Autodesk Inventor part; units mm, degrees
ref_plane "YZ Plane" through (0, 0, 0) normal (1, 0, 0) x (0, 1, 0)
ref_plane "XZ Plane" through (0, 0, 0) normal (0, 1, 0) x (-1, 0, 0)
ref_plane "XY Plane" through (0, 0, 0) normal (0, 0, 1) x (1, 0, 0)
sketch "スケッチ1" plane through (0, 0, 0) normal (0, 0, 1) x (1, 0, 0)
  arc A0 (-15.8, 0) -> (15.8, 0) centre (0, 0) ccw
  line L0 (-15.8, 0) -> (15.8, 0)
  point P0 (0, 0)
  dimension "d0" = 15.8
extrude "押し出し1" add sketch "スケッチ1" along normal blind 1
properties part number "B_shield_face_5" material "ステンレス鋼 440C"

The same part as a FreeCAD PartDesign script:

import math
import FreeCAD as App
import Part
import Sketcher
Q = App.Units.Quantity

doc = App.newDocument("Part")
body = doc.addObject("PartDesign::Body", "Body")

sketch1 = body.newObject("Sketcher::SketchObject", "Sketch")
sketch1.AttachmentSupport = (doc.getObject("XY_Plane"), [""])
sketch1.MapMode = "FlatFace"
sketch1.addGeometry([
    Part.LineSegment(App.Vector(16, 0, 0), App.Vector(-16, 0, 0)),
    Part.ArcOfCircle(Part.Circle(App.Vector(0, 0, 0), App.Vector(0, 0, 1), 16), math.radians(180), math.radians(360)),
], False)
sketch1.addConstraint([
    Sketcher.Constraint("Coincident", 0, 1, 1, 2),
    Sketcher.Constraint("Coincident", 1, 1, 0, 2),
    Sketcher.Constraint("Horizontal", 0),
    Sketcher.Constraint("Coincident", 1, 3, -1, 1),
    Sketcher.Constraint("PointOnObject", 0, 1, -1),
    Sketcher.Constraint("Radius", 1, Q("15.8 mm")),
])
pad1 = body.newObject("PartDesign::Pad", "Pad")
pad1.Profile = sketch1
pad1.Length = 1

doc.recompute()
